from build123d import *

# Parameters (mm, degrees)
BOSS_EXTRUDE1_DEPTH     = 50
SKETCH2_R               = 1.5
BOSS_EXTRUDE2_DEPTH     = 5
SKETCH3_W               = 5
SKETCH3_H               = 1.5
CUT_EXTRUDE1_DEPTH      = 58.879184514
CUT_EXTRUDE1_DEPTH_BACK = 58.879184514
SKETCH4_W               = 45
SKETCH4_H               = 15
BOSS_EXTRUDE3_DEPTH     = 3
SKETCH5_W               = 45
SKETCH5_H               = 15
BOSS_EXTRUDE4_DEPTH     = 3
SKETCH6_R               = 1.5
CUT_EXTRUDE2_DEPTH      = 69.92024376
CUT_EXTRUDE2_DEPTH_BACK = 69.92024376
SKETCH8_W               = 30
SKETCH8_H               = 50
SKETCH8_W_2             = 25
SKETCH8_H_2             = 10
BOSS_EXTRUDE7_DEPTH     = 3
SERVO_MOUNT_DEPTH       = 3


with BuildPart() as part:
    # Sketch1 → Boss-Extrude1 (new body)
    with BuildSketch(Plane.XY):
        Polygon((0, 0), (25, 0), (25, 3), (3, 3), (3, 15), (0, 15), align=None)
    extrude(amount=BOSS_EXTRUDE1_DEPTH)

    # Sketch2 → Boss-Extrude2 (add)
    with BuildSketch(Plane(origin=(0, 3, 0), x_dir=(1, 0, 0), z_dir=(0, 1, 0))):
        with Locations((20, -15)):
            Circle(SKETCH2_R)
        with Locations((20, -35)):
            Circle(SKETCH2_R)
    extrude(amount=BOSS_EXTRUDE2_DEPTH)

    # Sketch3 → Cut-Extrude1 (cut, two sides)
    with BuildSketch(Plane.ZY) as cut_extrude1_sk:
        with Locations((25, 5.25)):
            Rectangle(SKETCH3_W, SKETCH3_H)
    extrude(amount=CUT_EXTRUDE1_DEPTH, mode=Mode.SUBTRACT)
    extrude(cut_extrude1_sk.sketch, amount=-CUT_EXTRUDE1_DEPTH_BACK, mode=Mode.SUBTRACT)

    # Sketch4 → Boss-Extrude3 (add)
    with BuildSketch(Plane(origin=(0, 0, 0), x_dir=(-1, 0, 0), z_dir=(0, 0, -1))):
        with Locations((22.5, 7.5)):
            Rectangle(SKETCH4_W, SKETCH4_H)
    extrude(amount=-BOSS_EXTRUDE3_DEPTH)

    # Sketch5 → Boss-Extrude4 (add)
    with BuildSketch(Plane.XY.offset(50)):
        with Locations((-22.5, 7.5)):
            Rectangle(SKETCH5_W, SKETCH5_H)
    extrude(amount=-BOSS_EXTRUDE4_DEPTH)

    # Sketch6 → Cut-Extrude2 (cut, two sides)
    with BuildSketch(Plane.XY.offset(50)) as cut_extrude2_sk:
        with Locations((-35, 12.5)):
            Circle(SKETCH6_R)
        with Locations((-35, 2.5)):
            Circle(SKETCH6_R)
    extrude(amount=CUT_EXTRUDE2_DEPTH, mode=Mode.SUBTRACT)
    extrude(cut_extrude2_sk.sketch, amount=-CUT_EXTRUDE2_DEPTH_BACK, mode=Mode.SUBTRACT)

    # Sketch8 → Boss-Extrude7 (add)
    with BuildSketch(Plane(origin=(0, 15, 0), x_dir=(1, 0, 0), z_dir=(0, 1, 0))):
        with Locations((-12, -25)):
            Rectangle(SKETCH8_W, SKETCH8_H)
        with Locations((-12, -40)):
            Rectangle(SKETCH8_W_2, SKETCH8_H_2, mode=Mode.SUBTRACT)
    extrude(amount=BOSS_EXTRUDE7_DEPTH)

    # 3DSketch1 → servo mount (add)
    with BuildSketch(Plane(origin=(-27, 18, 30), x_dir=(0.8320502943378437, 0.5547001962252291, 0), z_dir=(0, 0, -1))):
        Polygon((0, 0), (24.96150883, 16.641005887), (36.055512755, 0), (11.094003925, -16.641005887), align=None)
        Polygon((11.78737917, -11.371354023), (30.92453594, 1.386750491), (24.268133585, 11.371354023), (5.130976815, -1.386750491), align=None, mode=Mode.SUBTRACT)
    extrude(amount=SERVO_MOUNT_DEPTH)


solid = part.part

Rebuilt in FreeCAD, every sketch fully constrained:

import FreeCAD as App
import Part
import Sketcher

V = App.Vector
Q = App.Units.Quantity


def add_polygon(sketch, points):
    """Adds a closed chain of lines whose ends are joined by coincident constraints."""
    first, n = sketch.GeometryCount, len(points)
    for a, b in zip(points, points[1:] + points[:1]):
        sketch.addGeometry(Part.LineSegment(App.Vector(*a, 0), App.Vector(*b, 0)), False)
    for i in range(n):
        sketch.addConstraint(Sketcher.Constraint("Coincident", first + i, 2, first + (i + 1) % n, 1))

doc = App.newDocument("Part")
body = doc.addObject("PartDesign::Body", "Body")

# Sketch on XY plane
sketch1 = body.newObject("Sketcher::SketchObject", "Sketch")
sketch1.AttachmentSupport = (doc.getObject("XY_Plane"), [""])
sketch1.MapMode = "FlatFace"
add_polygon(sketch1, [(0, 0), (25, 0), (25, 3), (3, 3), (3, 15), (0, 15)])  # lines 0-5
sketch1.addConstraint([
    Sketcher.Constraint("Horizontal", 0),
    Sketcher.Constraint("Vertical", 1),
    Sketcher.Constraint("Horizontal", 2),
    Sketcher.Constraint("Vertical", 3),
    Sketcher.Constraint("Horizontal", 4),
    Sketcher.Constraint("Vertical", 5),
    Sketcher.Constraint("Coincident", 5, 2, -1, 1),
    Sketcher.Constraint("Equal", 4, 1),
    Sketcher.Constraint("DistanceX", 0, 1, 0, 2, Q("25 mm")),
    Sketcher.Constraint("DistanceX", 2, 2, 2, 1, Q("22 mm")),
    Sketcher.Constraint("DistanceY", 3, 1, 3, 2, Q("12 mm")),
])
pad1 = body.newObject("PartDesign::Pad", "Pad")
pad1.Profile = sketch1
pad1.Length = 50

# Sketch on XZ plane
sketch2 = body.newObject("Sketcher::SketchObject", "Sketch001")
sketch2.AttachmentSupport = (doc.getObject("XZ_Plane"), [""])
sketch2.MapMode = "FlatFace"
sketch2.AttachmentOffset = App.Placement(V(0, 0, -3), App.Rotation())
sketch2.addGeometry([
    Part.Circle(V(20, 15, 0), V(0, 0, 1), 1.5),
    Part.Circle(V(20, 35, 0), V(0, 0, 1), 1.5),
], False)
sketch2.addConstraint([
    Sketcher.Constraint("Equal", 0, 1),
    Sketcher.Constraint("Vertical", 0, 3, 1, 3),
    Sketcher.Constraint("Diameter", 0, Q("3 mm")),
    Sketcher.Constraint("DistanceX", -1, 1, 0, 3, Q("20 mm")),
    Sketcher.Constraint("DistanceY", -1, 1, 0, 3, Q("15 mm")),
    Sketcher.Constraint("DistanceY", -1, 1, 1, 3, Q("35 mm")),
])
pad2 = body.newObject("PartDesign::Pad", "Pad001")
pad2.Profile = sketch2
pad2.Length = 5
pad2.Reversed = True

# Sketch on YZ plane
sketch3 = body.newObject("Sketcher::SketchObject", "Sketch002")
sketch3.AttachmentSupport = (doc.getObject("YZ_Plane"), [""])
sketch3.MapMode = "FlatFace"
add_polygon(sketch3, [(6, 22.5), (4.5, 22.5), (4.5, 27.5), (6, 27.5)])  # lines 0-3
sketch3.addConstraint([
    Sketcher.Constraint("Horizontal", 0),
    Sketcher.Constraint("Vertical", 1),
    Sketcher.Constraint("Horizontal", 2),
    Sketcher.Constraint("Vertical", 3),
    Sketcher.Constraint("DistanceY", 1, 1, 1, 2, Q("5 mm")),
    Sketcher.Constraint("DistanceX", 0, 2, 0, 1, Q("1.5 mm")),
    Sketcher.Constraint("DistanceX", -1, 1, 2, 2, Q("6 mm")),
    Sketcher.Constraint("DistanceY", -1, 1, 0, 2, Q("22.5 mm")),
])
pocket1 = body.newObject("PartDesign::Pocket", "Pocket")
pocket1.Profile = sketch3
pocket1.Type = "ThroughAll"
pocket1.Midplane = True

# Sketch on XY plane
sketch4 = body.newObject("Sketcher::SketchObject", "Sketch003")
sketch4.AttachmentSupport = (doc.getObject("XY_Plane"), [""])
sketch4.MapMode = "FlatFace"
add_polygon(sketch4, [(0, 15), (0, 0), (-45, 0), (-45, 15)])  # lines 0-3
sketch4.addConstraint([
    Sketcher.Constraint("Vertical", 0),
    Sketcher.Constraint("Horizontal", 1),
    Sketcher.Constraint("Vertical", 2),
    Sketcher.Constraint("Horizontal", 3),
    Sketcher.Constraint("Coincident", 0, 2, -1, 1),
    Sketcher.Constraint("DistanceX", 1, 2, 1, 1, Q("45 mm")),
    Sketcher.Constraint("DistanceY", 0, 2, 0, 1, Q("15 mm")),
])
pad3 = body.newObject("PartDesign::Pad", "Pad002")
pad3.Profile = sketch4
pad3.Length = 3

# Sketch on XY plane
sketch5 = body.newObject("Sketcher::SketchObject", "Sketch004")
sketch5.AttachmentSupport = (doc.getObject("XY_Plane"), [""])
sketch5.MapMode = "FlatFace"
sketch5.AttachmentOffset = App.Placement(V(0, 0, 50), App.Rotation())
add_polygon(sketch5, [(-45, 15), (-45, 0), (0, 0), (0, 15)])  # lines 0-3
sketch5.addConstraint([
    Sketcher.Constraint("Vertical", 0),
    Sketcher.Constraint("Horizontal", 1),
    Sketcher.Constraint("Vertical", 2),
    Sketcher.Constraint("Horizontal", 3),
    Sketcher.Constraint("Coincident", 1, 2, -1, 1),
    Sketcher.Constraint("DistanceX", 1, 1, 1, 2, Q("45 mm")),
    Sketcher.Constraint("DistanceY", 0, 2, 0, 1, Q("15 mm")),
])
pad4 = body.newObject("PartDesign::Pad", "Pad003")
pad4.Profile = sketch5
pad4.Length = 3
pad4.Reversed = True

# Sketch on XY plane
sketch6 = body.newObject("Sketcher::SketchObject", "Sketch005")
sketch6.AttachmentSupport = (doc.getObject("XY_Plane"), [""])
sketch6.MapMode = "FlatFace"
sketch6.AttachmentOffset = App.Placement(V(0, 0, 50), App.Rotation())
sketch6.addGeometry([
    Part.Circle(V(-35, 12.5, 0), V(0, 0, 1), 1.5),
    Part.Circle(V(-35, 2.5, 0), V(0, 0, 1), 1.5),
], False)
sketch6.addConstraint([
    Sketcher.Constraint("Equal", 0, 1),
    Sketcher.Constraint("Vertical", 0, 3, 1, 3),
    Sketcher.Constraint("Diameter", 0, Q("3 mm")),
    Sketcher.Constraint("DistanceX", 0, 3, -1, 1, Q("35 mm")),
    Sketcher.Constraint("DistanceY", 1, 3, 0, 3, Q("10 mm")),
    Sketcher.Constraint("DistanceY", -1, 1, 0, 3, Q("12.5 mm")),
])
pocket2 = body.newObject("PartDesign::Pocket", "Pocket001")
pocket2.Profile = sketch6
pocket2.Type = "ThroughAll"
pocket2.Midplane = True

# Sketch on XZ plane
sketch7 = body.newObject("Sketcher::SketchObject", "Sketch006")
sketch7.AttachmentSupport = (doc.getObject("XZ_Plane"), [""])
sketch7.MapMode = "FlatFace"
sketch7.AttachmentOffset = App.Placement(V(0, 0, -15), App.Rotation())
add_polygon(sketch7, [(-27, 0), (-27, 50), (3, 50), (3, 0)])  # lines 0-3
add_polygon(sketch7, [(0.5, 45), (-24.5, 45), (-24.5, 35), (0.5, 35)])  # lines 4-7
sketch7.addConstraint([
    Sketcher.Constraint("Vertical", 0),
    Sketcher.Constraint("Horizontal", 1),
    Sketcher.Constraint("Vertical", 2),
    Sketcher.Constraint("Horizontal", 3),
    Sketcher.Constraint("Horizontal", 4),
    Sketcher.Constraint("Vertical", 5),
    Sketcher.Constraint("Horizontal", 6),
    Sketcher.Constraint("Vertical", 7),
    Sketcher.Constraint("PointOnObject", 2, 2, -1),
    Sketcher.Constraint("DistanceX", 1, 1, 1, 2, Q("30 mm")),
    Sketcher.Constraint("DistanceX", 4, 2, 4, 1, Q("25 mm")),
    Sketcher.Constraint("DistanceY", 0, 1, 0, 2, Q("50 mm")),
    Sketcher.Constraint("DistanceY", 5, 2, 5, 1, Q("10 mm")),
    Sketcher.Constraint("DistanceX", 0, 2, -1, 1, Q("27 mm")),
    Sketcher.Constraint("DistanceY", -1, 1, 4, 2, Q("45 mm")),
    Sketcher.Constraint("DistanceX", 4, 2, -1, 1, Q("24.5 mm")),
])
pad5 = body.newObject("PartDesign::Pad", "Pad004")
pad5.Profile = sketch7
pad5.Length = 3
pad5.Reversed = True

# Sketch on XY plane
sketch8 = body.newObject("Sketcher::SketchObject", "Sketch007")
sketch8.AttachmentSupport = (doc.getObject("XY_Plane"), [""])
sketch8.MapMode = "FlatFace"
sketch8.AttachmentOffset = App.Placement(V(0, 0, 30), App.Rotation())
add_polygon(sketch8, [(3, 18), (-27, 18), (-27, 38), (3, 38)])  # lines 0-3
add_polygon(sketch8, [(-23.5, 34), (-23.5, 22), (-0.5, 22), (-0.5, 34)])  # lines 4-7
sketch8.addConstraint([
    Sketcher.Constraint("Horizontal", 0),
    Sketcher.Constraint("Vertical", 1),
    Sketcher.Constraint("Horizontal", 2),
    Sketcher.Constraint("Vertical", 3),
    Sketcher.Constraint("Vertical", 4),
    Sketcher.Constraint("Horizontal", 5),
    Sketcher.Constraint("Vertical", 6),
    Sketcher.Constraint("Horizontal", 7),
    Sketcher.Constraint("DistanceX", 0, 2, 0, 1, Q("30 mm")),
    Sketcher.Constraint("DistanceX", 5, 1, 5, 2, Q("23 mm")),
    Sketcher.Constraint("DistanceY", 1, 1, 1, 2, Q("20 mm")),
    Sketcher.Constraint("DistanceY", 4, 2, 4, 1, Q("12 mm")),
    Sketcher.Constraint("DistanceX", 0, 2, -1, 1, Q("27 mm")),
    Sketcher.Constraint("DistanceY", -1, 1, 0, 2, Q("18 mm")),
    Sketcher.Constraint("DistanceY", -1, 1, 4, 2, Q("22 mm")),
    Sketcher.Constraint("DistanceX", 4, 2, -1, 1, Q("23.5 mm")),
])
pad6 = body.newObject("PartDesign::Pad", "Pad005")
pad6.Profile = sketch8
pad6.Length = 3
pad6.Reversed = True

doc.recompute()
